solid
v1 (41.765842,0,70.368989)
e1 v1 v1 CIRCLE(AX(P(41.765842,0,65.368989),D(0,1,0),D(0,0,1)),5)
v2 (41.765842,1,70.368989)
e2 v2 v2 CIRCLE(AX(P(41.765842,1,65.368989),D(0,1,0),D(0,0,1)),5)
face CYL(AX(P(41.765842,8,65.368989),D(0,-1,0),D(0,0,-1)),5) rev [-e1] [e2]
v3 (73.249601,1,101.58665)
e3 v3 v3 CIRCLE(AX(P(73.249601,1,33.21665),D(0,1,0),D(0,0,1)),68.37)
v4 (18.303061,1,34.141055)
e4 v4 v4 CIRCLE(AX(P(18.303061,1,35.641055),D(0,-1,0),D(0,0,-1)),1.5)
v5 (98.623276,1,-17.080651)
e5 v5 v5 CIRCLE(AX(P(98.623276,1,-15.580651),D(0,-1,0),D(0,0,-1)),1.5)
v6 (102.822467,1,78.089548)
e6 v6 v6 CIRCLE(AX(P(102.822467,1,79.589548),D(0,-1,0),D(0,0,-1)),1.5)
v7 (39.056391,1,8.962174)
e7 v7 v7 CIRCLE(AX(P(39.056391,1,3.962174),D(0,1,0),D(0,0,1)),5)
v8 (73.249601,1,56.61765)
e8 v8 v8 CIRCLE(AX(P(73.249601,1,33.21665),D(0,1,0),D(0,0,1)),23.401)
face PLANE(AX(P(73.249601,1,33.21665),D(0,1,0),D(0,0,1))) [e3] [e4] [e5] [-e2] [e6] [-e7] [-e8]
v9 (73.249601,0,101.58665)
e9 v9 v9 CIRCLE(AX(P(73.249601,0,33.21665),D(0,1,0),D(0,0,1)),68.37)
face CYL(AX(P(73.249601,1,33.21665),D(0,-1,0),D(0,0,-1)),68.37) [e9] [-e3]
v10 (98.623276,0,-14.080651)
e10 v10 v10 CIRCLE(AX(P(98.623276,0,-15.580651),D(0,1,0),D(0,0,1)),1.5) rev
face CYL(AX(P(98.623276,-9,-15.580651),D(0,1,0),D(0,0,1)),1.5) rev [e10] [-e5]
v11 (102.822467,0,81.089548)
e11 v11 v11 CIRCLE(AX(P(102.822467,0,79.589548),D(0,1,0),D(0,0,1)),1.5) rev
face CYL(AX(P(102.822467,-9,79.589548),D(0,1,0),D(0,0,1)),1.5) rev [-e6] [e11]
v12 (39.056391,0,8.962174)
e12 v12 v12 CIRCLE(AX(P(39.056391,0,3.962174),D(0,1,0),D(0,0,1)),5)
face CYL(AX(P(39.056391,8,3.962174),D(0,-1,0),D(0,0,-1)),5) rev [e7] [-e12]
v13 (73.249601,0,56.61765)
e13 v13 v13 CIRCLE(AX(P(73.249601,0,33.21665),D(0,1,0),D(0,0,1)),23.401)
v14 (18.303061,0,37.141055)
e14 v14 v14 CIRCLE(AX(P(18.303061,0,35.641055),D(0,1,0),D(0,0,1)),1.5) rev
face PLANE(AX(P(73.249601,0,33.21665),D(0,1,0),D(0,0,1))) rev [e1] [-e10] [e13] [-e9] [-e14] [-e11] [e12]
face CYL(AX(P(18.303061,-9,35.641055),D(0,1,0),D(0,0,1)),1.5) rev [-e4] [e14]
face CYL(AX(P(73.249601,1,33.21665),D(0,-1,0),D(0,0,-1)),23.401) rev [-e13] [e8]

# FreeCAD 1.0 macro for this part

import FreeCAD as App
import Part
import Sketcher
Q = App.Units.Quantity

doc = App.newDocument("Part")
body = doc.addObject("PartDesign::Body", "Body")

# Sketch on XZ plane
sketch1 = doc.addObject("Sketcher::SketchObject", "Sketch")
body.addObject(sketch1)
sketch1.AttachmentSupport = (doc.XZ_Plane, [""])
sketch1.MapMode = "FlatFace"
sketch1.addGeometry(Part.Circle(App.Vector(73, 33, 0), App.Vector(0, 0, 1), 68), False)
sketch1.addGeometry(Part.Circle(App.Vector(73, 33, 0), App.Vector(0, 0, 1), 23), False)
sketch1.addConstraint(Sketcher.Constraint("Coincident", 1, 3, 0, 3))
sketch1.addConstraint(Sketcher.Constraint("Diameter", 0, Q("136.74 mm")))
sketch1.addConstraint(Sketcher.Constraint("Diameter", 1, Q("46.802 mm")))
sketch1.addConstraint(Sketcher.Constraint("DistanceX", -1, 1, 0, 3, Q("73.249601 mm")))
sketch1.addConstraint(Sketcher.Constraint("DistanceY", -1, 1, 0, 3, Q("33.21665 mm")))
pad1 = doc.addObject("PartDesign::Pad", "Pad")
body.addObject(pad1)
pad1.Profile = sketch1
pad1.Length = 1
pad1.Reversed = True

# Sketch on XZ plane
sketch2 = doc.addObject("Sketcher::SketchObject", "Sketch001")
body.addObject(sketch2)
sketch2.AttachmentSupport = (doc.XZ_Plane, [""])
sketch2.MapMode = "FlatFace"
sketch2.AttachmentOffset = App.Placement(App.Vector(0, 0, -1), App.Rotation())
sketch2.addGeometry(Part.Circle(App.Vector(18.3, 35.6, 0), App.Vector(0, 0, 1), 1.5), False)
sketch2.addGeometry(Part.Circle(App.Vector(102.8, 79.6, 0), App.Vector(0, 0, 1), 1.5), False)
sketch2.addGeometry(Part.Circle(App.Vector(98.6, -15.6, 0), App.Vector(0, 0, 1), 1.5), False)
sketch2.addConstraint(Sketcher.Constraint("Equal", 0, 1))
sketch2.addConstraint(Sketcher.Constraint("Equal", 1, 2))
sketch2.addConstraint(Sketcher.Constraint("Diameter", 0, Q("3 mm")))
sketch2.addConstraint(Sketcher.Constraint("DistanceY", 2, 3, 1, 3, Q("95.170199 mm")))
sketch2.addConstraint(Sketcher.Constraint("DistanceX", -1, 1, 0, 3, Q("18.303061 mm")))
sketch2.addConstraint(Sketcher.Constraint("DistanceY", 2, 3, -1, 1, Q("15.580651 mm")))
sketch2.addConstraint(Sketcher.Constraint("DistanceX", 2, 3, 1, 3, Q("4.199191 mm")))
sketch2.addConstraint(Sketcher.Constraint("DistanceY", -1, 1, 0, 3, Q("35.641055 mm")))
sketch2.addConstraint(Sketcher.Constraint("DistanceX", -1, 1, 1, 3, Q("102.822467 mm")))
pocket1 = doc.addObject("PartDesign::Pocket", "Pocket")
body.addObject(pocket1)
pocket1.Profile = sketch2
pocket1.Length = 10
pocket1.Reversed = True

# Sketch on XZ plane
sketch3 = doc.addObject("Sketcher::SketchObject", "Sketch002")
body.addObject(sketch3)
sketch3.AttachmentSupport = (doc.XZ_Plane, [""])
sketch3.MapMode = "FlatFace"
sketch3.AttachmentOffset = App.Placement(App.Vector(0, 0, 2), App.Rotation())
sketch3.addGeometry(Part.Circle(App.Vector(39, 4, 0), App.Vector(0, 0, 1), 5), False)
sketch3.addGeometry(Part.Circle(App.Vector(42, 65, 0), App.Vector(0, 0, 1), 5), False)
sketch3.addConstraint(Sketcher.Constraint("Equal", 0, 1))
sketch3.addConstraint(Sketcher.Constraint("Diameter", 0, Q("10 mm")))
sketch3.addConstraint(Sketcher.Constraint("DistanceX", -1, 1, 0, 3, Q("39.056391 mm")))
sketch3.addConstraint(Sketcher.Constraint("DistanceX", -1, 1, 1, 3, Q("41.765842 mm")))
sketch3.addConstraint(Sketcher.Constraint("DistanceY", -1, 1, 1, 3, Q("65.368989 mm")))
sketch3.addConstraint(Sketcher.Constraint("DistanceY", -1, 1, 0, 3, Q("3.962174 mm")))
pocket2 = doc.addObject("PartDesign::Pocket", "Pocket001")
body.addObject(pocket2)
pocket2.Profile = sketch3
pocket2.Length = 10

doc.recompute()
